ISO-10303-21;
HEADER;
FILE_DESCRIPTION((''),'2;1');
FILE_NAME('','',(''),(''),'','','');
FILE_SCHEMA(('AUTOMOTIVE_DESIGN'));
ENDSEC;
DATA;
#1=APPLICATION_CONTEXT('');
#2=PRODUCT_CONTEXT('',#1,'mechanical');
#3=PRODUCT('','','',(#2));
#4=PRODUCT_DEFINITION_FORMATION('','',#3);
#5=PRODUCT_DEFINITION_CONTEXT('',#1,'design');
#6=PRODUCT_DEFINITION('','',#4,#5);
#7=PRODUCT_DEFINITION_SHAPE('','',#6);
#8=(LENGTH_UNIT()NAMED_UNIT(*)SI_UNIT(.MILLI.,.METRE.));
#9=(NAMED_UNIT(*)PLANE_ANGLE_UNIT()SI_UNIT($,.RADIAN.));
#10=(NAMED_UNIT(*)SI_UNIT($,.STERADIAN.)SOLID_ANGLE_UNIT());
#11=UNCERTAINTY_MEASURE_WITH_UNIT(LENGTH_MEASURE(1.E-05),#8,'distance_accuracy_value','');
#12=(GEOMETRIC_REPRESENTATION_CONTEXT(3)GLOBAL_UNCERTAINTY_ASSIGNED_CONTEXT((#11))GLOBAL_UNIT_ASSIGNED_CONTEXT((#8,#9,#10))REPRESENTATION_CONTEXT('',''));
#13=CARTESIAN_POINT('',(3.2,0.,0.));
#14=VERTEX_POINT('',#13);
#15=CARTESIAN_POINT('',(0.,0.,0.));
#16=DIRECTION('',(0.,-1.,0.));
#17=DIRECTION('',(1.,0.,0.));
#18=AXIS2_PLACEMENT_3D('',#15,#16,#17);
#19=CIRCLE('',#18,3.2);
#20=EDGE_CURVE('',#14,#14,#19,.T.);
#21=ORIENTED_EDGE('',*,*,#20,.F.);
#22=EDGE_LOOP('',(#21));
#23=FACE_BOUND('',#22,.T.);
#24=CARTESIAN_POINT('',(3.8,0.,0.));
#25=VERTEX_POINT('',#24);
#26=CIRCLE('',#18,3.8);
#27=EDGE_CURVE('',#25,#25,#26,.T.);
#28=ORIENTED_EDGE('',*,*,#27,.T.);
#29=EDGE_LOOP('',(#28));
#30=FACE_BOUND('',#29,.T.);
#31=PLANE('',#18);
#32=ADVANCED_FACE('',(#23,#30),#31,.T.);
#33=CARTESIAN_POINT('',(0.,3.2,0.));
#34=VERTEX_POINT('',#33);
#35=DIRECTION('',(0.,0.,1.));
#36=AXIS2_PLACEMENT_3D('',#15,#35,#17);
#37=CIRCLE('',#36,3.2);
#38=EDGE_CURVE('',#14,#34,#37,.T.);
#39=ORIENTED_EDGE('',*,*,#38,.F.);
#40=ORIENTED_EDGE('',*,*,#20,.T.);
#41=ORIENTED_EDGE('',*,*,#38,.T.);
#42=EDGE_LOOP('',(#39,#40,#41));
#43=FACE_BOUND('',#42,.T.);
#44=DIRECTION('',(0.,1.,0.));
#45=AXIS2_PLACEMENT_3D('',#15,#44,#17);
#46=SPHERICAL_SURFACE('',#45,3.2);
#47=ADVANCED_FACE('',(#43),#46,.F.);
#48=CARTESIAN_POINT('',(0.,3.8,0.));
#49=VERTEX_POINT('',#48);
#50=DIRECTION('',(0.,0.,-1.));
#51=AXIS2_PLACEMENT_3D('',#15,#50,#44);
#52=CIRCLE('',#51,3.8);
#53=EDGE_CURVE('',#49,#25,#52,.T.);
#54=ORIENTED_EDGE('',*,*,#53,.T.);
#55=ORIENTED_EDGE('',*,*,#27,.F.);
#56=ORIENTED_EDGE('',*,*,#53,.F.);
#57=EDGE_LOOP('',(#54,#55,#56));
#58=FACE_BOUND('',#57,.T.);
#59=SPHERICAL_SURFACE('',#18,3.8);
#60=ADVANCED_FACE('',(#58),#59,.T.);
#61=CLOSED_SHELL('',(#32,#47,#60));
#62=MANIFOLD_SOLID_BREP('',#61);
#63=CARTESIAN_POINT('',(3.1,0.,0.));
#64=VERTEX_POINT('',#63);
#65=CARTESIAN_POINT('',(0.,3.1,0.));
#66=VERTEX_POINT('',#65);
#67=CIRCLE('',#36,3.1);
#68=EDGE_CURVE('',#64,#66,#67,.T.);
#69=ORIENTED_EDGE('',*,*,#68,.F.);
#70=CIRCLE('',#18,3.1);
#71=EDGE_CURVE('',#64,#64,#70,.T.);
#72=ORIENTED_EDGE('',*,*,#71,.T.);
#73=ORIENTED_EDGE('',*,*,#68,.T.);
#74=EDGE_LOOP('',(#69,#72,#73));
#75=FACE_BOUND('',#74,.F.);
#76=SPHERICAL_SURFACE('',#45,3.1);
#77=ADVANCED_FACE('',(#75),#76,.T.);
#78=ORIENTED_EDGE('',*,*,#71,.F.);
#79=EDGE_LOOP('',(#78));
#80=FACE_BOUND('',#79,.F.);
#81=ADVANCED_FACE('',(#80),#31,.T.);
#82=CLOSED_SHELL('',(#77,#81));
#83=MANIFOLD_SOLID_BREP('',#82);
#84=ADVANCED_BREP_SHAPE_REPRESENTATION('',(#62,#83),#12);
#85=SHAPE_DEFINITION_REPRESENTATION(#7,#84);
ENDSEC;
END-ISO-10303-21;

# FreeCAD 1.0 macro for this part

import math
import FreeCAD as App
import Part
import Sketcher

V = App.Vector

doc = App.newDocument("Part")
body = doc.addObject("PartDesign::Body", "Body")

# Sketch on XY plane
sketch1 = doc.addObject("Sketcher::SketchObject", "Sketch")
body.addObject(sketch1)
sketch1.AttachmentSupport = (doc.XY_Plane, [""])
sketch1.MapMode = "FlatFace"
sketch1.addGeometry([
    Part.LineSegment(V(0, 3.8, 0), V(0, 3.2, 0)),
    Part.ArcOfCircle(Part.Circle(V(0, 0, 0), V(0, 0, 1), 3.2), math.radians(0), math.radians(90)),
    Part.LineSegment(V(3.2, 0, 0), V(3.8, 0, 0)),
    Part.ArcOfCircle(Part.Circle(V(0, 0, 0), V(0, 0, 1), 3.8), math.radians(0), math.radians(90)),
], False)
sketch1.addConstraint([
    Sketcher.Constraint("Coincident", 0, 2, 1, 2),
    Sketcher.Constraint("Coincident", 1, 1, 2, 1),
    Sketcher.Constraint("Coincident", 2, 2, 3, 1),
    Sketcher.Constraint("Coincident", 3, 2, 0, 1),
    Sketcher.Constraint("Vertical", 0),
    Sketcher.Constraint("Horizontal", 2),
    Sketcher.Constraint("Coincident", 1, 3, -1, 1),
    Sketcher.Constraint("Coincident", 3, 3, -1, 1),
    Sketcher.Constraint("PointOnObject", 0, 2, -2),
    Sketcher.Constraint("PointOnObject", 1, 1, -1),
    Sketcher.Constraint("Radius", 1, 3.2),
    Sketcher.Constraint("Radius", 3, 3.8),
])
revolution = doc.addObject("PartDesign::Revolution", "Revolution")
body.addObject(revolution)
revolution.Profile = sketch1
revolution.ReferenceAxis = (sketch1, ["V_Axis"])
revolution.Angle = 360
body2 = doc.addObject("PartDesign::Body", "Body001")

# Sketch on XY plane
sketch2 = doc.addObject("Sketcher::SketchObject", "Sketch001")
body2.addObject(sketch2)
sketch2.AttachmentSupport = (doc.getObject("XY_Plane001"), [""])
sketch2.MapMode = "FlatFace"
sketch2.addGeometry([
    Part.LineSegment(V(0, 3.1, 0), V(0, 0, 0)),
    Part.LineSegment(V(0, 0, 0), V(3.1, 0, 0)),
    Part.ArcOfCircle(Part.Circle(V(0, 0, 0), V(0, 0, 1), 3.1), math.radians(0), math.radians(90)),
], False)
sketch2.addConstraint([
    Sketcher.Constraint("Coincident", 0, 2, 1, 1),
    Sketcher.Constraint("Coincident", 1, 2, 2, 1),
    Sketcher.Constraint("Coincident", 2, 2, 0, 1),
    Sketcher.Constraint("Vertical", 0),
    Sketcher.Constraint("Horizontal", 1),
    Sketcher.Constraint("Coincident", 2, 3, -1, 1),
    Sketcher.Constraint("Coincident", 0, 2, -1, 1),
    Sketcher.Constraint("Radius", 2, 3.1),
])
revolution2 = doc.addObject("PartDesign::Revolution", "Revolution001")
body2.addObject(revolution2)
revolution2.Profile = sketch2
revolution2.ReferenceAxis = (sketch2, ["V_Axis"])
revolution2.Angle = 360

doc.recompute()
